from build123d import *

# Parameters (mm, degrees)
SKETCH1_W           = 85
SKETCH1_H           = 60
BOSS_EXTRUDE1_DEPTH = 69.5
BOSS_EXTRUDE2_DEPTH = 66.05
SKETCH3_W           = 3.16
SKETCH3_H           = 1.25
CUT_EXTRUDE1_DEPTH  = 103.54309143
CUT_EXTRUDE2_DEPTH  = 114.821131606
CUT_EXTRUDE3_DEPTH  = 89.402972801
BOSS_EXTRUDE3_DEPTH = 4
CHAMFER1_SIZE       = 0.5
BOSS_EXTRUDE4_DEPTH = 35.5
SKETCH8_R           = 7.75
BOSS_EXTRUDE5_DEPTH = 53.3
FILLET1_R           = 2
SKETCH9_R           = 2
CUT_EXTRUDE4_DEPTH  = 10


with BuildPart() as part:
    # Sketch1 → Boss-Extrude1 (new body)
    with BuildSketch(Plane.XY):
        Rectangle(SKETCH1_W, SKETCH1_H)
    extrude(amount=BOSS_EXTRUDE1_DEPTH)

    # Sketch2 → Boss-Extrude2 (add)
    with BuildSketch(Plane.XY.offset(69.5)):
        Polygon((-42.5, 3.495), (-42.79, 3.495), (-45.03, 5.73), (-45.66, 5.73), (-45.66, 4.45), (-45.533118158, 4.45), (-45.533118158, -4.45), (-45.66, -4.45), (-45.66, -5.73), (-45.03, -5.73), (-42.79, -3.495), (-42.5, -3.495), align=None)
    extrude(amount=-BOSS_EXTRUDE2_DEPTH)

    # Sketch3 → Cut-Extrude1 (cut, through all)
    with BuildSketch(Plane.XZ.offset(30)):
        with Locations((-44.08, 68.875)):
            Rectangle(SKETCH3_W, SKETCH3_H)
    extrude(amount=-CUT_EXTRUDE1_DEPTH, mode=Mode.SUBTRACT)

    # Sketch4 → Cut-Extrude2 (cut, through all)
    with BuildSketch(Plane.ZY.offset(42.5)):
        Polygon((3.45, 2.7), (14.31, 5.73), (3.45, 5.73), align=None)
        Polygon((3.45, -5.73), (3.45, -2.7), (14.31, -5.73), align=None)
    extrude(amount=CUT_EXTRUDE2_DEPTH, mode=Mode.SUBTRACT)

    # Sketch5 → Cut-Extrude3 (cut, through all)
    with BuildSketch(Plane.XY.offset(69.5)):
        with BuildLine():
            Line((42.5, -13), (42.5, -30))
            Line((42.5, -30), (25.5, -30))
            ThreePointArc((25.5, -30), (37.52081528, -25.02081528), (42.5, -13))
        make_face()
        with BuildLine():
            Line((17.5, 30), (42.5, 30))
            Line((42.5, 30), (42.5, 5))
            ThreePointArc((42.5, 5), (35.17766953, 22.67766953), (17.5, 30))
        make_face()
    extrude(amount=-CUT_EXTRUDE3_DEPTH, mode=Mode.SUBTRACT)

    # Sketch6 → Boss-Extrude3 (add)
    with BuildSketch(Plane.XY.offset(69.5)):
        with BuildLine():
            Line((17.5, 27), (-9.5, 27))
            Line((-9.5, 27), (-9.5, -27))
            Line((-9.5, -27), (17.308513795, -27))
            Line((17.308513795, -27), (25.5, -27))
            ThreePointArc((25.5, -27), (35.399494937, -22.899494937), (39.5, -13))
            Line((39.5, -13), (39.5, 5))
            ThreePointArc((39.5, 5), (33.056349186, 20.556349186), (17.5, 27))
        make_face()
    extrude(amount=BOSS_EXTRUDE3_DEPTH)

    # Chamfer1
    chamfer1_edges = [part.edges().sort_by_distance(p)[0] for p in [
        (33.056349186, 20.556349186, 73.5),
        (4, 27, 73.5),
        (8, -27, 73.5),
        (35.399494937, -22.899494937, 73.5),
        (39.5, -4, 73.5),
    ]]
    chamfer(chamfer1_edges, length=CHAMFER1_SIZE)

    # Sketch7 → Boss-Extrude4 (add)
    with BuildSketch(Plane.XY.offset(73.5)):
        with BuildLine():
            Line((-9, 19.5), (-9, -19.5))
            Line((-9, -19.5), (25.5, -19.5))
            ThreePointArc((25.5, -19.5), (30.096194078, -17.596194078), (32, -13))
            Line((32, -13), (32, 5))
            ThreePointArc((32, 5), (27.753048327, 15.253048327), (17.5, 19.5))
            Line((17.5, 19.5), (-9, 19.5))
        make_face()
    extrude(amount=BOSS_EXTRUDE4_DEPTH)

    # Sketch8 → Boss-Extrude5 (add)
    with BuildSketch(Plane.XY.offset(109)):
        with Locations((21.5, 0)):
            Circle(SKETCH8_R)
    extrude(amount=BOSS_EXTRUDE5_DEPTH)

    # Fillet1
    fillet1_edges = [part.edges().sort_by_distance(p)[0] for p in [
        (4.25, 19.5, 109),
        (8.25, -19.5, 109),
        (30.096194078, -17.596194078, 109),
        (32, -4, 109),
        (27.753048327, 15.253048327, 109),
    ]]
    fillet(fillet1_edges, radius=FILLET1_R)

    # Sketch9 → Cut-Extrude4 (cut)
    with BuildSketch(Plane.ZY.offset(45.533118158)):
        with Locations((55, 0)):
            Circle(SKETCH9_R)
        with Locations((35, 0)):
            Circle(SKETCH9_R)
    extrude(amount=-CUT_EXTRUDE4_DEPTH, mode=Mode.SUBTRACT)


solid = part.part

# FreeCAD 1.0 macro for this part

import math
import FreeCAD as App
import Part
import Sketcher
from FreeCAD import Vector
Q = App.Units.Quantity


def edges_at(feature, points):
    """Names of the edges that pass closest to the given points."""
    edges = feature.Shape.Edges
    near = lambda p: min(range(len(edges)), key=lambda i: edges[i].distToShape(Part.Vertex(*p))[0])
    return sorted({f"Edge{near(p) + 1}" for p in points})

doc = App.newDocument("Part")
body = doc.addObject("PartDesign::Body", "Body")

sketch1 = body.newObject("Sketcher::SketchObject", "Sketch")
sketch1.AttachmentSupport = (doc.getObject("XY_Plane"), [""])
sketch1.MapMode = "FlatFace"
sketch1.addGeometry(Part.LineSegment(Vector(-42.5, 30, 0), Vector(-42.5, -30, 0)), False)
sketch1.addGeometry(Part.LineSegment(Vector(-42.5, -30, 0), Vector(42.5, -30, 0)), False)
sketch1.addGeometry(Part.LineSegment(Vector(42.5, -30, 0), Vector(42.5, 30, 0)), False)
sketch1.addGeometry(Part.LineSegment(Vector(42.5, 30, 0), Vector(-42.5, 30, 0)), False)
sketch1.addConstraint(Sketcher.Constraint("Coincident", 0, 2, 1, 1))
sketch1.addConstraint(Sketcher.Constraint("Coincident", 1, 2, 2, 1))
sketch1.addConstraint(Sketcher.Constraint("Coincident", 2, 2, 3, 1))
sketch1.addConstraint(Sketcher.Constraint("Coincident", 3, 2, 0, 1))
sketch1.addConstraint(Sketcher.Constraint("Vertical", 0))
sketch1.addConstraint(Sketcher.Constraint("Horizontal", 1))
sketch1.addConstraint(Sketcher.Constraint("Vertical", 2))
sketch1.addConstraint(Sketcher.Constraint("Horizontal", 3))
sketch1.addConstraint(Sketcher.Constraint("Symmetric", 0, 2, 2, 2, -1, 1))
sketch1.addConstraint(Sketcher.Constraint("DistanceX", 1, 1, 1, 2, Q("85 mm")))
sketch1.addConstraint(Sketcher.Constraint("DistanceY", 0, 2, 0, 1, Q("60 mm")))
pad1 = body.newObject("PartDesign::Pad", "Pad")
pad1.Profile = sketch1
pad1.Length = 69.5

sketch2 = body.newObject("Sketcher::SketchObject", "Sketch001")
sketch2.AttachmentSupport = (doc.getObject("XY_Plane"), [""])
sketch2.MapMode = "FlatFace"
sketch2.AttachmentOffset = App.Placement(Vector(0, 0, 69.5), App.Rotation())
sketch2.addGeometry(Part.LineSegment(Vector(-42.5, 3.495, 0), Vector(-42.79, 3.495, 0)), False)
sketch2.addGeometry(Part.LineSegment(Vector(-42.79, 3.495, 0), Vector(-45.03, 5.73, 0)), False)
sketch2.addGeometry(Part.LineSegment(Vector(-45.03, 5.73, 0), Vector(-45.66, 5.73, 0)), False)
sketch2.addGeometry(Part.LineSegment(Vector(-45.66, 5.73, 0), Vector(-45.66, 4.45, 0)), False)
sketch2.addGeometry(Part.LineSegment(Vector(-45.66, 4.45, 0), Vector(-45.533118, 4.45, 0)), False)
sketch2.addGeometry(Part.LineSegment(Vector(-45.533118, 4.45, 0), Vector(-45.533118, -4.45, 0)), False)
sketch2.addGeometry(Part.LineSegment(Vector(-45.533118, -4.45, 0), Vector(-45.66, -4.45, 0)), False)
sketch2.addGeometry(Part.LineSegment(Vector(-45.66, -4.45, 0), Vector(-45.66, -5.73, 0)), False)
sketch2.addGeometry(Part.LineSegment(Vector(-45.66, -5.73, 0), Vector(-45.03, -5.73, 0)), False)
sketch2.addGeometry(Part.LineSegment(Vector(-45.03, -5.73, 0), Vector(-42.79, -3.495, 0)), False)
sketch2.addGeometry(Part.LineSegment(Vector(-42.79, -3.495, 0), Vector(-42.5, -3.495, 0)), False)
sketch2.addGeometry(Part.LineSegment(Vector(-42.5, -3.495, 0), Vector(-42.5, 3.495, 0)), False)
sketch2.addConstraint(Sketcher.Constraint("Coincident", 0, 2, 1, 1))
sketch2.addConstraint(Sketcher.Constraint("Coincident", 1, 2, 2, 1))
sketch2.addConstraint(Sketcher.Constraint("Coincident", 2, 2, 3, 1))
sketch2.addConstraint(Sketcher.Constraint("Coincident", 3, 2, 4, 1))
sketch2.addConstraint(Sketcher.Constraint("Coincident", 4, 2, 5, 1))
sketch2.addConstraint(Sketcher.Constraint("Coincident", 5, 2, 6, 1))
sketch2.addConstraint(Sketcher.Constraint("Coincident", 6, 2, 7, 1))
sketch2.addConstraint(Sketcher.Constraint("Coincident", 7, 2, 8, 1))
sketch2.addConstraint(Sketcher.Constraint("Coincident", 8, 2, 9, 1))
sketch2.addConstraint(Sketcher.Constraint("Coincident", 9, 2, 10, 1))
sketch2.addConstraint(Sketcher.Constraint("Coincident", 10, 2, 11, 1))
sketch2.addConstraint(Sketcher.Constraint("Coincident", 11, 2, 0, 1))
sketch2.addConstraint(Sketcher.Constraint("Horizontal", 0))
sketch2.addConstraint(Sketcher.Constraint("Horizontal", 2))
sketch2.addConstraint(Sketcher.Constraint("Vertical", 3))
sketch2.addConstraint(Sketcher.Constraint("Horizontal", 4))
sketch2.addConstraint(Sketcher.Constraint("Vertical", 5))
sketch2.addConstraint(Sketcher.Constraint("Horizontal", 6))
sketch2.addConstraint(Sketcher.Constraint("Vertical", 7))
sketch2.addConstraint(Sketcher.Constraint("Horizontal", 8))
sketch2.addConstraint(Sketcher.Constraint("Horizontal", 10))
sketch2.addConstraint(Sketcher.Constraint("Vertical", 11))
sketch2.addConstraint(Sketcher.Constraint("Symmetric", 3, 2, 6, 2, -1))
sketch2.addConstraint(Sketcher.Constraint("Symmetric", 1, 2, 8, 2, -1))
sketch2.addConstraint(Sketcher.Constraint("Symmetric", 0, 2, 9, 2, -1))
sketch2.addConstraint(Sketcher.Constraint("DistanceY", 5, 2, 5, 1, Q("8.9 mm")))
sketch2.addConstraint(Sketcher.Constraint("DistanceX", 0, 2, 0, 1, Q("0.29 mm")))
sketch2.addConstraint(Sketcher.Constraint("DistanceX", 2, 2, 2, 1, Q("0.63 mm")))
sketch2.addConstraint(Sketcher.Constraint("DistanceY", 3, 2, 3, 1, Q("1.28 mm")))
sketch2.addConstraint(Sketcher.Constraint("DistanceY", 11, 1, 11, 2, Q("6.99 mm")))
sketch2.addConstraint(Sketcher.Constraint("DistanceX", 10, 2, -1, 1, Q("42.5 mm")))
sketch2.addConstraint(Sketcher.Constraint("DistanceX", 1, 2, -1, 1, Q("45.03 mm")))
sketch2.addConstraint(Sketcher.Constraint("DistanceX", 4, 1, 4, 2, Q("0.126882 mm")))
pad2 = body.newObject("PartDesign::Pad", "Pad001")
pad2.Profile = sketch2
pad2.Length = 66.05
pad2.Reversed = True

sketch3 = body.newObject("Sketcher::SketchObject", "Sketch002")
sketch3.AttachmentSupport = (doc.getObject("XZ_Plane"), [""])
sketch3.MapMode = "FlatFace"
sketch3.AttachmentOffset = App.Placement(Vector(0, 0, 30), App.Rotation())
sketch3.addGeometry(Part.LineSegment(Vector(-45.66, 69.5, 0), Vector(-45.66, 68.25, 0)), False)
sketch3.addGeometry(Part.LineSegment(Vector(-45.66, 68.25, 0), Vector(-42.5, 68.25, 0)), False)
sketch3.addGeometry(Part.LineSegment(Vector(-42.5, 68.25, 0), Vector(-42.5, 69.5, 0)), False)
sketch3.addGeometry(Part.LineSegment(Vector(-42.5, 69.5, 0), Vector(-45.66, 69.5, 0)), False)
sketch3.addConstraint(Sketcher.Constraint("Coincident", 0, 2, 1, 1))
sketch3.addConstraint(Sketcher.Constraint("Coincident", 1, 2, 2, 1))
sketch3.addConstraint(Sketcher.Constraint("Coincident", 2, 2, 3, 1))
sketch3.addConstraint(Sketcher.Constraint("Coincident", 3, 2, 0, 1))
sketch3.addConstraint(Sketcher.Constraint("Vertical", 0))
sketch3.addConstraint(Sketcher.Constraint("Horizontal", 1))
sketch3.addConstraint(Sketcher.Constraint("Vertical", 2))
sketch3.addConstraint(Sketcher.Constraint("Horizontal", 3))
sketch3.addConstraint(Sketcher.Constraint("DistanceX", 1, 1, 1, 2, Q("3.16 mm")))
sketch3.addConstraint(Sketcher.Constraint("DistanceY", 0, 2, 0, 1, Q("1.25 mm")))
sketch3.addConstraint(Sketcher.Constraint("DistanceX", 1, 2, -1, 1, Q("42.5 mm")))
sketch3.addConstraint(Sketcher.Constraint("DistanceY", -1, 1, 2, 2, Q("69.5 mm")))
pocket1 = body.newObject("PartDesign::Pocket", "Pocket")
pocket1.Profile = sketch3
pocket1.Type = "ThroughAll"

sketch4 = body.newObject("Sketcher::SketchObject", "Sketch003")
sketch4.AttachmentSupport = (doc.getObject("YZ_Plane"), [""])
sketch4.MapMode = "FlatFace"
sketch4.AttachmentOffset = App.Placement(Vector(0, 0, -42.5), App.Rotation())
sketch4.addGeometry(Part.LineSegment(Vector(2.7, 3.45, 0), Vector(5.73, 14.31, 0)), False)
sketch4.addGeometry(Part.LineSegment(Vector(5.73, 14.31, 0), Vector(5.73, 3.45, 0)), False)
sketch4.addGeometry(Part.LineSegment(Vector(5.73, 3.45, 0), Vector(2.7, 3.45, 0)), False)
sketch4.addGeometry(Part.LineSegment(Vector(-2.7, 3.45, 0), Vector(-5.73, 3.45, 0)), False)
sketch4.addGeometry(Part.LineSegment(Vector(-5.73, 3.45, 0), Vector(-5.73, 14.31, 0)), False)
sketch4.addGeometry(Part.LineSegment(Vector(-5.73, 14.31, 0), Vector(-2.7, 3.45, 0)), False)
sketch4.addConstraint(Sketcher.Constraint("Coincident", 0, 2, 1, 1))
sketch4.addConstraint(Sketcher.Constraint("Coincident", 1, 2, 2, 1))
sketch4.addConstraint(Sketcher.Constraint("Coincident", 2, 2, 0, 1))
sketch4.addConstraint(Sketcher.Constraint("Coincident", 3, 2, 4, 1))
sketch4.addConstraint(Sketcher.Constraint("Coincident", 4, 2, 5, 1))
sketch4.addConstraint(Sketcher.Constraint("Coincident", 5, 2, 3, 1))
sketch4.addConstraint(Sketcher.Constraint("Vertical", 1))
sketch4.addConstraint(Sketcher.Constraint("Horizontal", 2))
sketch4.addConstraint(Sketcher.Constraint("Horizontal", 3))
sketch4.addConstraint(Sketcher.Constraint("Vertical", 4))
sketch4.addConstraint(Sketcher.Constraint("Symmetric", 1, 2, 3, 2, -2))
sketch4.addConstraint(Sketcher.Constraint("Horizontal", 0, 2, 4, 2))
sketch4.addConstraint(Sketcher.Constraint("Equal", 2, 3))
sketch4.addConstraint(Sketcher.Constraint("DistanceX", 2, 2, 2, 1, Q("3.03 mm")))
sketch4.addConstraint(Sketcher.Constraint("DistanceY", 1, 2, 1, 1, Q("10.86 mm")))
sketch4.addConstraint(Sketcher.Constraint("DistanceX", -1, 1, 2, 2, Q("2.7 mm")))
sketch4.addConstraint(Sketcher.Constraint("DistanceY", -1, 1, 0, 2, Q("14.31 mm")))
pocket2 = body.newObject("PartDesign::Pocket", "Pocket001")
pocket2.Profile = sketch4
pocket2.Type = "ThroughAll"

sketch5 = body.newObject("Sketcher::SketchObject", "Sketch004")
sketch5.AttachmentSupport = (doc.getObject("XY_Plane"), [""])
sketch5.MapMode = "FlatFace"
sketch5.AttachmentOffset = App.Placement(Vector(0, 0, 69.5), App.Rotation())
sketch5.addGeometry(Part.LineSegment(Vector(42.5, -30, 0), Vector(42.5, -13, 0)), False)
sketch5.addGeometry(Part.ArcOfCircle(Part.Circle(Vector(25.5, -13, 0), Vector(0, 0, 1), 17), math.radians(-90), math.radians(0)), False)
sketch5.addGeometry(Part.LineSegment(Vector(25.5, -30, 0), Vector(42.5, -30, 0)), False)
sketch5.addGeometry(Part.LineSegment(Vector(42.5, 30, 0), Vector(17.5, 30, 0)), False)
sketch5.addGeometry(Part.ArcOfCircle(Part.Circle(Vector(17.5, 5, 0), Vector(0, 0, 1), 25), math.radians(0), math.radians(90)), False)
sketch5.addGeometry(Part.LineSegment(Vector(42.5, 5, 0), Vector(42.5, 30, 0)), False)
sketch5.addConstraint(Sketcher.Constraint("Tangent", 0, 2, 1, 2))
sketch5.addConstraint(Sketcher.Constraint("Tangent", 1, 1, 2, 1))
sketch5.addConstraint(Sketcher.Constraint("Coincident", 2, 2, 0, 1))
sketch5.addConstraint(Sketcher.Constraint("Tangent", 3, 2, 4, 2))
sketch5.addConstraint(Sketcher.Constraint("Tangent", 4, 1, 5, 1))
sketch5.addConstraint(Sketcher.Constraint("Coincident", 5, 2, 3, 1))
sketch5.addConstraint(Sketcher.Constraint("Vertical", 0))
sketch5.addConstraint(Sketcher.Constraint("Horizontal", 2))
sketch5.addConstraint(Sketcher.Constraint("Horizontal", 3))
sketch5.addConstraint(Sketcher.Constraint("Vertical", 5))
sketch5.addConstraint(Sketcher.Constraint("Symmetric", 2, 2, 5, 2, -1))
sketch5.addConstraint(Sketcher.Constraint("Radius", 1, Q("17 mm")))
sketch5.addConstraint(Sketcher.Constraint("Radius", 4, Q("25 mm")))
sketch5.addConstraint(Sketcher.Constraint("DistanceY", 1, 3, -1, 1, Q("13 mm")))
sketch5.addConstraint(Sketcher.Constraint("DistanceX", -1, 1, 1, 3, Q("25.5 mm")))
pocket3 = body.newObject("PartDesign::Pocket", "Pocket002")
pocket3.Profile = sketch5
pocket3.Type = "ThroughAll"

sketch6 = body.newObject("Sketcher::SketchObject", "Sketch005")
sketch6.AttachmentSupport = (doc.getObject("XY_Plane"), [""])
sketch6.MapMode = "FlatFace"
sketch6.AttachmentOffset = App.Placement(Vector(0, 0, 69.5), App.Rotation())
sketch6.addGeometry(Part.LineSegment(Vector(17.5, 27, 0), Vector(-9.5, 27, 0)), False)
sketch6.addGeometry(Part.LineSegment(Vector(-9.5, 27, 0), Vector(-9.5, -27, 0)), False)
sketch6.addGeometry(Part.LineSegment(Vector(-9.5, -27, 0), Vector(25.5, -27, 0)), False)
sketch6.addGeometry(Part.ArcOfCircle(Part.Circle(Vector(25.5, -13, 0), Vector(0, 0, 1), 14), math.radians(-90), math.radians(0)), False)
sketch6.addGeometry(Part.LineSegment(Vector(39.5, -13, 0), Vector(39.5, 5, 0)), False)
sketch6.addGeometry(Part.ArcOfCircle(Part.Circle(Vector(17.5, 5, 0), Vector(0, 0, 1), 22), math.radians(0), math.radians(90)), False)
sketch6.addConstraint(Sketcher.Constraint("Coincident", 0, 2, 1, 1))
sketch6.addConstraint(Sketcher.Constraint("Coincident", 1, 2, 2, 1))
sketch6.addConstraint(Sketcher.Constraint("Tangent", 2, 2, 3, 1))
sketch6.addConstraint(Sketcher.Constraint("Tangent", 3, 2, 4, 1))
sketch6.addConstraint(Sketcher.Constraint("Tangent", 4, 2, 5, 1))
sketch6.addConstraint(Sketcher.Constraint("Tangent", 5, 2, 0, 1))
sketch6.addConstraint(Sketcher.Constraint("Horizontal", 0))
sketch6.addConstraint(Sketcher.Constraint("Vertical", 1))
sketch6.addConstraint(Sketcher.Constraint("Horizontal", 2))
sketch6.addConstraint(Sketcher.Constraint("Vertical", 4))
sketch6.addConstraint(Sketcher.Constraint("Radius", 3, Q("14 mm")))
sketch6.addConstraint(Sketcher.Constraint("Radius", 5, Q("22 mm")))
sketch6.addConstraint(Sketcher.Constraint("DistanceX", 0, 2, 0, 1, Q("27 mm")))
sketch6.addConstraint(Sketcher.Constraint("DistanceY", 1, 2, 1, 1, Q("54 mm")))
sketch6.addConstraint(Sketcher.Constraint("DistanceY", 3, 3, -1, 1, Q("13 mm")))
sketch6.addConstraint(Sketcher.Constraint("DistanceX", -1, 1, 3, 3, Q("25.5 mm")))
pad3 = body.newObject("PartDesign::Pad", "Pad002")
pad3.Profile = sketch6
pad3.Length = 4
doc.recompute()

chamfer = body.newObject("PartDesign::Chamfer", "Chamfer")
chamfer.Base = (pad3, edges_at(pad3, [
    (33.056, 20.556, 73.5),
    (4, 27, 73.5),
    (8, -27, 73.5),
    (35.399, -22.899, 73.5),
    (39.5, -4, 73.5),
]))
chamfer.Size = 0.5

sketch7 = body.newObject("Sketcher::SketchObject", "Sketch006")
sketch7.AttachmentSupport = (doc.getObject("XY_Plane"), [""])
sketch7.MapMode = "FlatFace"
sketch7.AttachmentOffset = App.Placement(Vector(0, 0, 73.5), App.Rotation())
sketch7.addGeometry(Part.LineSegment(Vector(-9, 19.5, 0), Vector(-9, -19.5, 0)), False)
sketch7.addGeometry(Part.LineSegment(Vector(-9, -19.5, 0), Vector(25.5, -19.5, 0)), False)
sketch7.addGeometry(Part.ArcOfCircle(Part.Circle(Vector(25.5, -13, 0), Vector(0, 0, 1), 6.5), math.radians(-90), math.radians(0)), False)
sketch7.addGeometry(Part.LineSegment(Vector(32, -13, 0), Vector(32, 5, 0)), False)
sketch7.addGeometry(Part.ArcOfCircle(Part.Circle(Vector(17.5, 5, 0), Vector(0, 0, 1), 14.5), math.radians(0), math.radians(90)), False)
sketch7.addGeometry(Part.LineSegment(Vector(17.5, 19.5, 0), Vector(-9, 19.5, 0)), False)
sketch7.addConstraint(Sketcher.Constraint("Coincident", 0, 2, 1, 1))
sketch7.addConstraint(Sketcher.Constraint("Tangent", 1, 2, 2, 1))
sketch7.addConstraint(Sketcher.Constraint("Tangent", 2, 2, 3, 1))
sketch7.addConstraint(Sketcher.Constraint("Tangent", 3, 2, 4, 1))
sketch7.addConstraint(Sketcher.Constraint("Tangent", 4, 2, 5, 1))
sketch7.addConstraint(Sketcher.Constraint("Coincident", 5, 2, 0, 1))
sketch7.addConstraint(Sketcher.Constraint("Vertical", 0))
sketch7.addConstraint(Sketcher.Constraint("Horizontal", 1))
sketch7.addConstraint(Sketcher.Constraint("Vertical", 3))
sketch7.addConstraint(Sketcher.Constraint("Horizontal", 5))
sketch7.addConstraint(Sketcher.Constraint("Radius", 2, Q("6.5 mm")))
sketch7.addConstraint(Sketcher.Constraint("Radius", 4, Q("14.5 mm")))
sketch7.addConstraint(Sketcher.Constraint("DistanceY", 0, 2, 0, 1, Q("39 mm")))
sketch7.addConstraint(Sketcher.Constraint("DistanceX", 1, 1, 1, 2, Q("34.5 mm")))
sketch7.addConstraint(Sketcher.Constraint("DistanceY", 2, 3, -1, 1, Q("13 mm")))
sketch7.addConstraint(Sketcher.Constraint("DistanceX", 0, 2, -1, 1, Q("9 mm")))
pad4 = body.newObject("PartDesign::Pad", "Pad003")
pad4.Profile = sketch7
pad4.Length = 35.5

sketch8 = body.newObject("Sketcher::SketchObject", "Sketch007")
sketch8.AttachmentSupport = (doc.getObject("XY_Plane"), [""])
sketch8.MapMode = "FlatFace"
sketch8.AttachmentOffset = App.Placement(Vector(0, 0, 109), App.Rotation())
sketch8.addGeometry(Part.Circle(Vector(21.5, 0, 0), Vector(0, 0, 1), 7.75), False)
sketch8.addConstraint(Sketcher.Constraint("PointOnObject", 0, 3, -1))
sketch8.addConstraint(Sketcher.Constraint("Diameter", 0, Q("15.5 mm")))
sketch8.addConstraint(Sketcher.Constraint("DistanceX", -1, 1, 0, 3, Q("21.5 mm")))
pad5 = body.newObject("PartDesign::Pad", "Pad004")
pad5.Profile = sketch8
pad5.Length = 53.3
doc.recompute()

fillet = body.newObject("PartDesign::Fillet", "Fillet")
fillet.Base = (pad5, edges_at(pad5, [
    (4.25, 19.5, 109),
    (8.25, -19.5, 109),
    (30.096, -17.596, 109),
    (32, -4, 109),
    (27.753, 15.253, 109),
]))
fillet.Radius = 2

sketch9 = body.newObject("Sketcher::SketchObject", "Sketch008")
sketch9.AttachmentSupport = (doc.getObject("YZ_Plane"), [""])
sketch9.MapMode = "FlatFace"
sketch9.AttachmentOffset = App.Placement(Vector(0, 0, -45.533118), App.Rotation())
sketch9.addGeometry(Part.Circle(Vector(0, 55, 0), Vector(0, 0, 1), 2), False)
sketch9.addGeometry(Part.Circle(Vector(0, 35, 0), Vector(0, 0, 1), 2), False)
sketch9.addConstraint(Sketcher.Constraint("Equal", 0, 1))
sketch9.addConstraint(Sketcher.Constraint("PointOnObject", 0, 3, -2))
sketch9.addConstraint(Sketcher.Constraint("PointOnObject", 1, 3, -2))
sketch9.addConstraint(Sketcher.Constraint("Diameter", 0, Q("4 mm")))
sketch9.addConstraint(Sketcher.Constraint("DistanceY", -1, 1, 0, 3, Q("55 mm")))
sketch9.addConstraint(Sketcher.Constraint("DistanceY", -1, 1, 1, 3, Q("35 mm")))
pocket4 = body.newObject("PartDesign::Pocket", "Pocket003")
pocket4.Profile = sketch9
pocket4.Length = 10
pocket4.Reversed = True

doc.recompute()
